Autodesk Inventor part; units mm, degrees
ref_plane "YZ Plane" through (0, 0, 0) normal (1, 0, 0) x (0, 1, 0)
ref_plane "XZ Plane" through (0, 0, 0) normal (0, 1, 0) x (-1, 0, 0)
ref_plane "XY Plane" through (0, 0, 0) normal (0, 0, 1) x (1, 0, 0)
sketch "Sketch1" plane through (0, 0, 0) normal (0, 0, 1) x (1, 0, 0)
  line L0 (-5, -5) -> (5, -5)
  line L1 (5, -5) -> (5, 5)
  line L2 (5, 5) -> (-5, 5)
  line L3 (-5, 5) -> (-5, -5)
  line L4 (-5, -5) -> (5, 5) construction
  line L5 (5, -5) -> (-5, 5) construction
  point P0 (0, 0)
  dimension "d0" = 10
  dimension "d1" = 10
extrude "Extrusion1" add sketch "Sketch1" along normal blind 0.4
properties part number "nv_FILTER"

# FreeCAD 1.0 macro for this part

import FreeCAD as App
import Part
import Sketcher
Q = App.Units.Quantity


def add_polygon(sketch, points):
    """Adds a closed chain of lines whose ends are joined by coincident constraints."""
    first, n = sketch.GeometryCount, len(points)
    for a, b in zip(points, points[1:] + points[:1]):
        sketch.addGeometry(Part.LineSegment(App.Vector(*a, 0), App.Vector(*b, 0)), False)
    for i in range(n):
        sketch.addConstraint(Sketcher.Constraint("Coincident", first + i, 2, first + (i + 1) % n, 1))

doc = App.newDocument("Part")
body = doc.addObject("PartDesign::Body", "Body")

sketch1 = body.newObject("Sketcher::SketchObject", "Sketch")
sketch1.AttachmentSupport = (doc.getObject("XY_Plane"), [""])
sketch1.MapMode = "FlatFace"
add_polygon(sketch1, [(-5, 5), (-5, -5), (5, -5), (5, 5)])
sketch1.addConstraint([
    Sketcher.Constraint("Vertical", 0),
    Sketcher.Constraint("Horizontal", 1),
    Sketcher.Constraint("Vertical", 2),
    Sketcher.Constraint("Horizontal", 3),
    Sketcher.Constraint("Symmetric", 0, 2, 2, 2, -1, 1),
    Sketcher.Constraint("Equal", 3, 0),
    Sketcher.Constraint("DistanceX", 1, 1, 1, 2, Q("10 mm")),
])
pad1 = body.newObject("PartDesign::Pad", "Pad")
pad1.Profile = sketch1
pad1.Length = 0.4

doc.recompute()
